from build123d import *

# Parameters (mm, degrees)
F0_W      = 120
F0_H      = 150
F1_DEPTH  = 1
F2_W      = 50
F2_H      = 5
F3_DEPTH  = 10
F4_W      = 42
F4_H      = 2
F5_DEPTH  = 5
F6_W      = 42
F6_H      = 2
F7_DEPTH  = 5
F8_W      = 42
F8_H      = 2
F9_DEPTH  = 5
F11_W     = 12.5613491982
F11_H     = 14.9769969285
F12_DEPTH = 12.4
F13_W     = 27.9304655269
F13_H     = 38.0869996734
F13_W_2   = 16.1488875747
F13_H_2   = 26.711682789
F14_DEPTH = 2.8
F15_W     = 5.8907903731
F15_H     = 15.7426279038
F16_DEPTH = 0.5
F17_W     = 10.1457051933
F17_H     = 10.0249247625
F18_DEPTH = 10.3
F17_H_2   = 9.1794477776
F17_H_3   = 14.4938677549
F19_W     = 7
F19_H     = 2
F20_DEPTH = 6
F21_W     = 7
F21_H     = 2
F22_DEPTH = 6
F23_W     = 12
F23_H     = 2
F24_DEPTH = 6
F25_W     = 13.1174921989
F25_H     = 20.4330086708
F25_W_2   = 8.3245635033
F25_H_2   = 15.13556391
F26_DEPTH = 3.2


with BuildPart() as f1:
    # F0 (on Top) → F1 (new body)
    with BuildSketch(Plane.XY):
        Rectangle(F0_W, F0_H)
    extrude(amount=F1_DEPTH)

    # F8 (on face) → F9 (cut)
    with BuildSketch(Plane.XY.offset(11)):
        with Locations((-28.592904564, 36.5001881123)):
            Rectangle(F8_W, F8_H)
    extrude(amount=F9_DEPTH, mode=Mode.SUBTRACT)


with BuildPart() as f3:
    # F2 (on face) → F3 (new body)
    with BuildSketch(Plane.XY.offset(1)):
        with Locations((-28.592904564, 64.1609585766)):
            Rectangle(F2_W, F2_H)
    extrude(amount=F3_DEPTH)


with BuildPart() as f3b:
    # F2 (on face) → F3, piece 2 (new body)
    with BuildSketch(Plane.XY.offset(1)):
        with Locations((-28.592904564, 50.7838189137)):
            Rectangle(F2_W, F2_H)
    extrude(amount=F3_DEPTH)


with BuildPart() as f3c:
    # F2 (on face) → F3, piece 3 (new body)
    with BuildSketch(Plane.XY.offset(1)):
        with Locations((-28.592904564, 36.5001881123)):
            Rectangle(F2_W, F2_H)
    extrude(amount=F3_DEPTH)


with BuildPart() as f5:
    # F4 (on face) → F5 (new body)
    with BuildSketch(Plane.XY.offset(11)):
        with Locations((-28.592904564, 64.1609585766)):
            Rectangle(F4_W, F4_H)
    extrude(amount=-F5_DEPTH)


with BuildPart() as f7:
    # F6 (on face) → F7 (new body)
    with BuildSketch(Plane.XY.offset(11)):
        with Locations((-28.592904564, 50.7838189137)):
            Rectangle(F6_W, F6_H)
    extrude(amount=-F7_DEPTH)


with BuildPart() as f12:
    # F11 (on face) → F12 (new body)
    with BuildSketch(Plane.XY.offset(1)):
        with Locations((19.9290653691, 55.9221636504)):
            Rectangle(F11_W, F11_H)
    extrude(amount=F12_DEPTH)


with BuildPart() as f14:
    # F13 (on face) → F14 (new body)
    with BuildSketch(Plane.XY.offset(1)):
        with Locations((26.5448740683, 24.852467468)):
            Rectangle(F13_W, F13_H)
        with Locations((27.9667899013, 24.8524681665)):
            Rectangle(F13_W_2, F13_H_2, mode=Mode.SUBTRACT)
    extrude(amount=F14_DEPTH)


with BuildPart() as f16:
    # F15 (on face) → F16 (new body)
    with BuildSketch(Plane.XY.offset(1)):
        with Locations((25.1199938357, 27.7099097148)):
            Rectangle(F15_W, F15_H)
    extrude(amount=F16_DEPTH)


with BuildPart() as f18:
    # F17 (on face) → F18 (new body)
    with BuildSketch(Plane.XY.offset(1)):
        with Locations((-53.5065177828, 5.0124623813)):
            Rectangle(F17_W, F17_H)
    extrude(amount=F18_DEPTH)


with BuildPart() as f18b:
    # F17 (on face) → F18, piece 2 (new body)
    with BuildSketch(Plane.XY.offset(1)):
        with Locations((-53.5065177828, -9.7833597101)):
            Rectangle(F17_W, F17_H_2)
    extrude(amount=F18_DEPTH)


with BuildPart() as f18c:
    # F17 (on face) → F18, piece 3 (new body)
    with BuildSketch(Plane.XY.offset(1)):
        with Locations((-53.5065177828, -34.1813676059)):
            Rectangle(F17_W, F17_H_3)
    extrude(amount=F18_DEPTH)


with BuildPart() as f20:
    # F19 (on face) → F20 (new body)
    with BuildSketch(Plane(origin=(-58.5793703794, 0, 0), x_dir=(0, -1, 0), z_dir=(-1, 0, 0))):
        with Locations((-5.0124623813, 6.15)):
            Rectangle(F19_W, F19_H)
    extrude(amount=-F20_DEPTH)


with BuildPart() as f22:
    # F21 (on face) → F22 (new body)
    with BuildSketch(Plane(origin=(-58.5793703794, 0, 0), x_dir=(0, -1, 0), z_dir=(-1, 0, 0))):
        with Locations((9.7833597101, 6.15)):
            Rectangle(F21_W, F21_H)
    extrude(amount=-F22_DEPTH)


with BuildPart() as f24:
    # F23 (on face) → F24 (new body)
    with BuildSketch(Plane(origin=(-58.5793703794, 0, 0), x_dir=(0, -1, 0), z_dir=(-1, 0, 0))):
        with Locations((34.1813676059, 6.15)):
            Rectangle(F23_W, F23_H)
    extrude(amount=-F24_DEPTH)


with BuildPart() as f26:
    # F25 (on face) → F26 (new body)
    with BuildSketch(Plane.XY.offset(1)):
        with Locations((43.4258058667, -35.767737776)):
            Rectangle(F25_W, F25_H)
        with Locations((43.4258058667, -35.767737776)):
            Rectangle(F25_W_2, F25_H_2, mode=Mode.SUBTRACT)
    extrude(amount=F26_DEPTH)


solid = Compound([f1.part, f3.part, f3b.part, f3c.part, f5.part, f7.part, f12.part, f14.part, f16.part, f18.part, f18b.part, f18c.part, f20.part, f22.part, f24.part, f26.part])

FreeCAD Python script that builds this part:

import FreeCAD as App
import Part
import Sketcher
from FreeCAD import Vector


def add_polygon(sketch, points):
    """Adds a closed chain of lines whose ends are joined by coincident constraints."""
    first, n = sketch.GeometryCount, len(points)
    for a, b in zip(points, points[1:] + points[:1]):
        sketch.addGeometry(Part.LineSegment(App.Vector(*a, 0), App.Vector(*b, 0)), False)
    for i in range(n):
        sketch.addConstraint(Sketcher.Constraint("Coincident", first + i, 2, first + (i + 1) % n, 1))

doc = App.newDocument("Part")
body = doc.addObject("PartDesign::Body", "Body")

# Sketch on XY plane
sketch1 = doc.addObject("Sketcher::SketchObject", "Sketch")
body.addObject(sketch1)
sketch1.AttachmentSupport = (doc.XY_Plane, [""])
sketch1.MapMode = "FlatFace"
add_polygon(sketch1, [(-60, 75), (-60, -75), (60, -75), (60, 75)])  # lines 0-3
sketch1.addConstraint([
    Sketcher.Constraint("Vertical", 0),
    Sketcher.Constraint("Horizontal", 1),
    Sketcher.Constraint("Vertical", 2),
    Sketcher.Constraint("Horizontal", 3),
    Sketcher.Constraint("Symmetric", 0, 2, 2, 2, -1, 1),
    Sketcher.Constraint("DistanceX", 1, 1, 1, 2, 120.0),
    Sketcher.Constraint("DistanceY", 0, 2, 0, 1, 150.0),
])
pad1 = doc.addObject("PartDesign::Pad", "Pad")
body.addObject(pad1)
pad1.Profile = sketch1
pad1.Length = 1

# Sketch on XY plane
sketch2 = doc.addObject("Sketcher::SketchObject", "Sketch001")
body.addObject(sketch2)
sketch2.AttachmentSupport = (doc.XY_Plane, [""])
sketch2.MapMode = "FlatFace"
sketch2.AttachmentOffset = App.Placement(Vector(0, 0, 11), App.Rotation())
add_polygon(sketch2, [(-49.6, 37.5), (-49.6, 35.5), (-7.6, 35.5), (-7.6, 37.5)])  # lines 0-3
sketch2.addConstraint([
    Sketcher.Constraint("Vertical", 0),
    Sketcher.Constraint("Horizontal", 1),
    Sketcher.Constraint("Vertical", 2),
    Sketcher.Constraint("Horizontal", 3),
    Sketcher.Constraint("DistanceX", 1, 1, 1, 2, 42.0),
    Sketcher.Constraint("DistanceY", 0, 2, 0, 1, 2.0),
    Sketcher.Constraint("DistanceY", -1, 1, 0, 2, 35.500188),
    Sketcher.Constraint("DistanceX", 0, 2, -1, 1, 49.592905),
])
pocket1 = doc.addObject("PartDesign::Pocket", "Pocket")
body.addObject(pocket1)
pocket1.Profile = sketch2
pocket1.Length = 5
pocket1.Reversed = True
body2 = doc.addObject("PartDesign::Body", "Body001")

# Sketch on XY plane
sketch3 = doc.addObject("Sketcher::SketchObject", "Sketch002")
body2.addObject(sketch3)
sketch3.AttachmentSupport = (doc.getObject("XY_Plane001"), [""])
sketch3.MapMode = "FlatFace"
sketch3.AttachmentOffset = App.Placement(Vector(0, 0, 1), App.Rotation())
add_polygon(sketch3, [(-54, 67), (-54, 62), (-4, 62), (-4, 67)])  # lines 0-3
sketch3.addConstraint([
    Sketcher.Constraint("Vertical", 0),
    Sketcher.Constraint("Horizontal", 1),
    Sketcher.Constraint("Vertical", 2),
    Sketcher.Constraint("Horizontal", 3),
    Sketcher.Constraint("DistanceX", 1, 1, 1, 2, 50.0),
    Sketcher.Constraint("DistanceY", 0, 2, 0, 1, 5.0),
    Sketcher.Constraint("DistanceY", -1, 1, 0, 2, 61.660959),
    Sketcher.Constraint("DistanceX", 0, 2, -1, 1, 53.592905),
])
pad2 = doc.addObject("PartDesign::Pad", "Pad001")
body2.addObject(pad2)
pad2.Profile = sketch3
pad2.Length = 10
body3 = doc.addObject("PartDesign::Body", "Body002")

# Sketch on XY plane
sketch4 = doc.addObject("Sketcher::SketchObject", "Sketch003")
body3.addObject(sketch4)
sketch4.AttachmentSupport = (doc.getObject("XY_Plane002"), [""])
sketch4.MapMode = "FlatFace"
sketch4.AttachmentOffset = App.Placement(Vector(0, 0, 1), App.Rotation())
add_polygon(sketch4, [(-54, 53), (-54, 48), (-4, 48), (-4, 53)])  # lines 0-3
sketch4.addConstraint([
    Sketcher.Constraint("Vertical", 0),
    Sketcher.Constraint("Horizontal", 1),
    Sketcher.Constraint("Vertical", 2),
    Sketcher.Constraint("Horizontal", 3),
    Sketcher.Constraint("DistanceX", 1, 1, 1, 2, 50.0),
    Sketcher.Constraint("DistanceY", 0, 2, 0, 1, 5.0),
    Sketcher.Constraint("DistanceY", -1, 1, 0, 2, 48.283819),
    Sketcher.Constraint("DistanceX", 0, 2, -1, 1, 53.592905),
])
pad3 = doc.addObject("PartDesign::Pad", "Pad002")
body3.addObject(pad3)
pad3.Profile = sketch4
pad3.Length = 10
body4 = doc.addObject("PartDesign::Body", "Body003")

# Sketch on XY plane
sketch5 = doc.addObject("Sketcher::SketchObject", "Sketch004")
body4.addObject(sketch5)
sketch5.AttachmentSupport = (doc.getObject("XY_Plane003"), [""])
sketch5.MapMode = "FlatFace"
sketch5.AttachmentOffset = App.Placement(Vector(0, 0, 1), App.Rotation())
add_polygon(sketch5, [(-54, 39), (-54, 34), (-4, 34), (-4, 39)])  # lines 0-3
sketch5.addConstraint([
    Sketcher.Constraint("Vertical", 0),
    Sketcher.Constraint("Horizontal", 1),
    Sketcher.Constraint("Vertical", 2),
    Sketcher.Constraint("Horizontal", 3),
    Sketcher.Constraint("DistanceX", 1, 1, 1, 2, 50.0),
    Sketcher.Constraint("DistanceY", 0, 2, 0, 1, 5.0),
    Sketcher.Constraint("DistanceY", -1, 1, 0, 2, 34.000188),
    Sketcher.Constraint("DistanceX", 0, 2, -1, 1, 53.592905),
])
pad4 = doc.addObject("PartDesign::Pad", "Pad003")
body4.addObject(pad4)
pad4.Profile = sketch5
pad4.Length = 10
body5 = doc.addObject("PartDesign::Body", "Body004")

# Sketch on XY plane
sketch6 = doc.addObject("Sketcher::SketchObject", "Sketch005")
body5.addObject(sketch6)
sketch6.AttachmentSupport = (doc.getObject("XY_Plane004"), [""])
sketch6.MapMode = "FlatFace"
sketch6.AttachmentOffset = App.Placement(Vector(0, 0, 11), App.Rotation())
add_polygon(sketch6, [(-49.6, 65.2), (-49.6, 63.2), (-7.6, 63.2), (-7.6, 65.2)])  # lines 0-3
sketch6.addConstraint([
    Sketcher.Constraint("Vertical", 0),
    Sketcher.Constraint("Horizontal", 1),
    Sketcher.Constraint("Vertical", 2),
    Sketcher.Constraint("Horizontal", 3),
    Sketcher.Constraint("DistanceX", 1, 1, 1, 2, 42.0),
    Sketcher.Constraint("DistanceY", 0, 2, 0, 1, 2.0),
    Sketcher.Constraint("DistanceY", -1, 1, 0, 2, 63.160959),
    Sketcher.Constraint("DistanceX", 0, 2, -1, 1, 49.592905),
])
pad5 = doc.addObject("PartDesign::Pad", "Pad004")
body5.addObject(pad5)
pad5.Profile = sketch6
pad5.Length = 5
pad5.Reversed = True
body6 = doc.addObject("PartDesign::Body", "Body005")

# Sketch on XY plane
sketch7 = doc.addObject("Sketcher::SketchObject", "Sketch006")
body6.addObject(sketch7)
sketch7.AttachmentSupport = (doc.getObject("XY_Plane005"), [""])
sketch7.MapMode = "FlatFace"
sketch7.AttachmentOffset = App.Placement(Vector(0, 0, 11), App.Rotation())
add_polygon(sketch7, [(-49.6, 51.8), (-49.6, 49.8), (-7.6, 49.8), (-7.6, 51.8)])  # lines 0-3
sketch7.addConstraint([
    Sketcher.Constraint("Vertical", 0),
    Sketcher.Constraint("Horizontal", 1),
    Sketcher.Constraint("Vertical", 2),
    Sketcher.Constraint("Horizontal", 3),
    Sketcher.Constraint("DistanceX", 1, 1, 1, 2, 42.0),
    Sketcher.Constraint("DistanceY", 0, 2, 0, 1, 2.0),
    Sketcher.Constraint("DistanceY", -1, 1, 0, 2, 49.783819),
    Sketcher.Constraint("DistanceX", 0, 2, -1, 1, 49.592905),
])
pad6 = doc.addObject("PartDesign::Pad", "Pad005")
body6.addObject(pad6)
pad6.Profile = sketch7
pad6.Length = 5
pad6.Reversed = True
body7 = doc.addObject("PartDesign::Body", "Body006")

# Sketch on XY plane
sketch8 = doc.addObject("Sketcher::SketchObject", "Sketch007")
body7.addObject(sketch8)
sketch8.AttachmentSupport = (doc.getObject("XY_Plane006"), [""])
sketch8.MapMode = "FlatFace"
sketch8.AttachmentOffset = App.Placement(Vector(0, 0, 1), App.Rotation())
add_polygon(sketch8, [(14, 63), (14, 48), (26, 48), (26, 63)])  # lines 0-3
sketch8.addConstraint([
    Sketcher.Constraint("Vertical", 0),
    Sketcher.Constraint("Horizontal", 1),
    Sketcher.Constraint("Vertical", 2),
    Sketcher.Constraint("Horizontal", 3),
    Sketcher.Constraint("DistanceX", 1, 1, 1, 2, 12.561349),
    Sketcher.Constraint("DistanceY", 0, 2, 0, 1, 14.976997),
    Sketcher.Constraint("DistanceX", -1, 1, 0, 2, 13.648391),
    Sketcher.Constraint("DistanceY", -1, 1, 0, 2, 48.433665),
])
pad7 = doc.addObject("PartDesign::Pad", "Pad006")
body7.addObject(pad7)
pad7.Profile = sketch8
pad7.Length = 12.4
body8 = doc.addObject("PartDesign::Body", "Body007")

# Sketch on XY plane
sketch9 = doc.addObject("Sketcher::SketchObject", "Sketch008")
body8.addObject(sketch9)
sketch9.AttachmentSupport = (doc.getObject("XY_Plane007"), [""])
sketch9.MapMode = "FlatFace"
sketch9.AttachmentOffset = App.Placement(Vector(0, 0, 1), App.Rotation())
add_polygon(sketch9, [(13, 44), (13, 6), (41, 6), (41, 44)])  # lines 0-3
add_polygon(sketch9, [(36, 11), (20, 11), (20, 38), (36, 38)])  # lines 4-7
sketch9.addConstraint([
    Sketcher.Constraint("Vertical", 0),
    Sketcher.Constraint("Horizontal", 1),
    Sketcher.Constraint("Vertical", 2),
    Sketcher.Constraint("Horizontal", 3),
    Sketcher.Constraint("Horizontal", 4),
    Sketcher.Constraint("Vertical", 5),
    Sketcher.Constraint("Horizontal", 6),
    Sketcher.Constraint("Vertical", 7),
    Sketcher.Constraint("DistanceY", 0, 2, 0, 1, 38.087),
    Sketcher.Constraint("DistanceX", 1, 1, 1, 2, 27.930466),
    Sketcher.Constraint("DistanceX", 4, 2, 4, 1, 16.148888),
    Sketcher.Constraint("DistanceY", 5, 1, 5, 2, 26.711683),
    Sketcher.Constraint("DistanceX", -1, 1, 0, 2, 12.579641),
    Sketcher.Constraint("DistanceY", -1, 1, 5, 2, 38.20831),
    Sketcher.Constraint("DistanceY", 0, 2, 4, 2, 5.687659),
    Sketcher.Constraint("DistanceX", 4, 2, 1, 2, 20.617761),
])
pad8 = doc.addObject("PartDesign::Pad", "Pad007")
body8.addObject(pad8)
pad8.Profile = sketch9
pad8.Length = 2.8
body9 = doc.addObject("PartDesign::Body", "Body008")

# Sketch on XY plane
sketch10 = doc.addObject("Sketcher::SketchObject", "Sketch009")
body9.addObject(sketch10)
sketch10.AttachmentSupport = (doc.getObject("XY_Plane008"), [""])
sketch10.MapMode = "FlatFace"
sketch10.AttachmentOffset = App.Placement(Vector(0, 0, 1), App.Rotation())
add_polygon(sketch10, [(22, 36), (22, 20), (28, 20), (28, 36)])  # lines 0-3
sketch10.addConstraint([
    Sketcher.Constraint("Vertical", 0),
    Sketcher.Constraint("Horizontal", 1),
    Sketcher.Constraint("Vertical", 2),
    Sketcher.Constraint("Horizontal", 3),
    Sketcher.Constraint("DistanceX", 1, 1, 1, 2, 5.89079),
    Sketcher.Constraint("DistanceX", -1, 1, 0, 2, 22.174599),
    Sketcher.Constraint("DistanceY", 0, 2, 0, 1, 15.742628),
    Sketcher.Constraint("DistanceY", -1, 1, 0, 2, 19.838596),
])
pad9 = doc.addObject("PartDesign::Pad", "Pad008")
body9.addObject(pad9)
pad9.Profile = sketch10
pad9.Length = 0.5
body10 = doc.addObject("PartDesign::Body", "Body009")

# Sketch on XY plane
sketch11 = doc.addObject("Sketcher::SketchObject", "Sketch010")
body10.addObject(sketch11)
sketch11.AttachmentSupport = (doc.getObject("XY_Plane009"), [""])
sketch11.MapMode = "FlatFace"
sketch11.AttachmentOffset = App.Placement(Vector(0, 0, 1), App.Rotation())
add_polygon(sketch11, [(-59, 10), (-59, 0), (-48, 0), (-48, 10)])  # lines 0-3
sketch11.addConstraint([
    Sketcher.Constraint("Vertical", 0),
    Sketcher.Constraint("Horizontal", 1),
    Sketcher.Constraint("Vertical", 2),
    Sketcher.Constraint("Horizontal", 3),
    Sketcher.Constraint("PointOnObject", 0, 2, -1),
    Sketcher.Constraint("DistanceX", 1, 1, 1, 2, 10.145705),
    Sketcher.Constraint("DistanceY", 0, 2, 0, 1, 10.024925),
    Sketcher.Constraint("DistanceX", 0, 2, -1, 1, 58.57937),
])
pad10 = doc.addObject("PartDesign::Pad", "Pad009")
body10.addObject(pad10)
pad10.Profile = sketch11
pad10.Length = 10.3
body11 = doc.addObject("PartDesign::Body", "Body010")

# Sketch on XY plane
sketch12 = doc.addObject("Sketcher::SketchObject", "Sketch011")
body11.addObject(sketch12)
sketch12.AttachmentSupport = (doc.getObject("XY_Plane010"), [""])
sketch12.MapMode = "FlatFace"
sketch12.AttachmentOffset = App.Placement(Vector(0, 0, 1), App.Rotation())
add_polygon(sketch12, [(-59, -5), (-59, -14), (-48, -14), (-48, -5)])  # lines 0-3
sketch12.addConstraint([
    Sketcher.Constraint("Vertical", 0),
    Sketcher.Constraint("Horizontal", 1),
    Sketcher.Constraint("Vertical", 2),
    Sketcher.Constraint("Horizontal", 3),
    Sketcher.Constraint("DistanceX", 1, 1, 1, 2, 10.145705),
    Sketcher.Constraint("DistanceY", 0, 2, 0, 1, 9.179448),
    Sketcher.Constraint("DistanceX", 0, 2, -1, 1, 58.57937),
    Sketcher.Constraint("DistanceY", 0, 2, -1, 1, 14.373084),
])
pad11 = doc.addObject("PartDesign::Pad", "Pad010")
body11.addObject(pad11)
pad11.Profile = sketch12
pad11.Length = 10.3
body12 = doc.addObject("PartDesign::Body", "Body011")

# Sketch on XY plane
sketch13 = doc.addObject("Sketcher::SketchObject", "Sketch012")
body12.addObject(sketch13)
sketch13.AttachmentSupport = (doc.getObject("XY_Plane011"), [""])
sketch13.MapMode = "FlatFace"
sketch13.AttachmentOffset = App.Placement(Vector(0, 0, 1), App.Rotation())
add_polygon(sketch13, [(-59, -27), (-59, -41), (-48, -41), (-48, -27)])  # lines 0-3
sketch13.addConstraint([
    Sketcher.Constraint("Vertical", 0),
    Sketcher.Constraint("Horizontal", 1),
    Sketcher.Constraint("Vertical", 2),
    Sketcher.Constraint("Horizontal", 3),
    Sketcher.Constraint("DistanceY", 0, 2, -1, 1, 41.428301),
    Sketcher.Constraint("DistanceX", 1, 1, 1, 2, 10.145705),
    Sketcher.Constraint("DistanceY", 0, 2, 0, 1, 14.493868),
    Sketcher.Constraint("DistanceX", 0, 2, -1, 1, 58.57937),
])
pad12 = doc.addObject("PartDesign::Pad", "Pad011")
body12.addObject(pad12)
pad12.Profile = sketch13
pad12.Length = 10.3
body13 = doc.addObject("PartDesign::Body", "Body012")

# Sketch on YZ plane
sketch14 = doc.addObject("Sketcher::SketchObject", "Sketch013")
body13.addObject(sketch14)
sketch14.AttachmentSupport = (doc.getObject("YZ_Plane012"), [""])
sketch14.MapMode = "FlatFace"
sketch14.AttachmentOffset = App.Placement(Vector(0, 0, -58.57937), App.Rotation())
add_polygon(sketch14, [(8.5, 7.2), (8.5, 5.2), (1.5, 5.2), (1.5, 7.2)])  # lines 0-3
sketch14.addConstraint([
    Sketcher.Constraint("Vertical", 0),
    Sketcher.Constraint("Horizontal", 1),
    Sketcher.Constraint("Vertical", 2),
    Sketcher.Constraint("Horizontal", 3),
    Sketcher.Constraint("DistanceX", 1, 2, 1, 1, 7.0),
    Sketcher.Constraint("DistanceY", 0, 2, 0, 1, 2.0),
    Sketcher.Constraint("DistanceY", -1, 1, 0, 2, 5.15),
    Sketcher.Constraint("DistanceX", -1, 1, 0, 2, 8.512462),
])
pad13 = doc.addObject("PartDesign::Pad", "Pad012")
body13.addObject(pad13)
pad13.Profile = sketch14
pad13.Length = 6
body14 = doc.addObject("PartDesign::Body", "Body013")

# Sketch on YZ plane
sketch15 = doc.addObject("Sketcher::SketchObject", "Sketch014")
body14.addObject(sketch15)
sketch15.AttachmentSupport = (doc.getObject("YZ_Plane013"), [""])
sketch15.MapMode = "FlatFace"
sketch15.AttachmentOffset = App.Placement(Vector(0, 0, -58.57937), App.Rotation())
add_polygon(sketch15, [(-6.3, 7.2), (-6.3, 5.2), (-13.3, 5.2), (-13.3, 7.2)])  # lines 0-3
sketch15.addConstraint([
    Sketcher.Constraint("Vertical", 0),
    Sketcher.Constraint("Horizontal", 1),
    Sketcher.Constraint("Vertical", 2),
    Sketcher.Constraint("Horizontal", 3),
    Sketcher.Constraint("DistanceX", 1, 2, 1, 1, 7.0),
    Sketcher.Constraint("DistanceY", 0, 2, 0, 1, 2.0),
    Sketcher.Constraint("DistanceY", -1, 1, 0, 2, 5.15),
    Sketcher.Constraint("DistanceX", 0, 2, -1, 1, 6.28336),
])
pad14 = doc.addObject("PartDesign::Pad", "Pad013")
body14.addObject(pad14)
pad14.Profile = sketch15
pad14.Length = 6
body15 = doc.addObject("PartDesign::Body", "Body014")

# Sketch on YZ plane
sketch16 = doc.addObject("Sketcher::SketchObject", "Sketch015")
body15.addObject(sketch16)
sketch16.AttachmentSupport = (doc.getObject("YZ_Plane014"), [""])
sketch16.MapMode = "FlatFace"
sketch16.AttachmentOffset = App.Placement(Vector(0, 0, -58.57937), App.Rotation())
add_polygon(sketch16, [(-28.2, 7.2), (-28.2, 5.2), (-40.2, 5.2), (-40.2, 7.2)])  # lines 0-3
sketch16.addConstraint([
    Sketcher.Constraint("Vertical", 0),
    Sketcher.Constraint("Horizontal", 1),
    Sketcher.Constraint("Vertical", 2),
    Sketcher.Constraint("Horizontal", 3),
    Sketcher.Constraint("DistanceX", 1, 2, 1, 1, 12.0),
    Sketcher.Constraint("DistanceY", 0, 2, 0, 1, 2.0),
    Sketcher.Constraint("DistanceY", -1, 1, 0, 2, 5.15),
    Sketcher.Constraint("DistanceX", 0, 2, -1, 1, 28.181368),
])
pad15 = doc.addObject("PartDesign::Pad", "Pad014")
body15.addObject(pad15)
pad15.Profile = sketch16
pad15.Length = 6
body16 = doc.addObject("PartDesign::Body", "Body015")

# Sketch on XY plane
sketch17 = doc.addObject("Sketcher::SketchObject", "Sketch016")
body16.addObject(sketch17)
sketch17.AttachmentSupport = (doc.getObject("XY_Plane015"), [""])
sketch17.MapMode = "FlatFace"
sketch17.AttachmentOffset = App.Placement(Vector(0, 0, 1), App.Rotation())
add_polygon(sketch17, [(37, -26), (37, -46), (50, -46), (50, -26)])  # lines 0-3
add_polygon(sketch17, [(48, -43), (39, -43), (39, -28), (48, -28)])  # lines 4-7
sketch17.addConstraint([
    Sketcher.Constraint("Vertical", 0),
    Sketcher.Constraint("Horizontal", 1),
    Sketcher.Constraint("Vertical", 2),
    Sketcher.Constraint("Horizontal", 3),
    Sketcher.Constraint("Horizontal", 4),
    Sketcher.Constraint("Vertical", 5),
    Sketcher.Constraint("Horizontal", 6),
    Sketcher.Constraint("Vertical", 7),
    Sketcher.Constraint("DistanceY", 0, 2, 0, 1, 20.433009),
    Sketcher.Constraint("DistanceX", 1, 1, 1, 2, 13.117492),
    Sketcher.Constraint("DistanceX", 4, 2, 4, 1, 8.324564),
    Sketcher.Constraint("DistanceY", 5, 1, 5, 2, 15.135564),
    Sketcher.Constraint("DistanceX", -1, 1, 0, 2, 36.86706),
    Sketcher.Constraint("DistanceY", 4, 2, -1, 1, 43.33552),
    Sketcher.Constraint("DistanceY", 0, 2, -1, 1, 45.984242),
    Sketcher.Constraint("DistanceX", -1, 1, 4, 2, 39.263524),
])
pad16 = doc.addObject("PartDesign::Pad", "Pad015")
body16.addObject(pad16)
pad16.Profile = sketch17
pad16.Length = 3.2

doc.recompute()
